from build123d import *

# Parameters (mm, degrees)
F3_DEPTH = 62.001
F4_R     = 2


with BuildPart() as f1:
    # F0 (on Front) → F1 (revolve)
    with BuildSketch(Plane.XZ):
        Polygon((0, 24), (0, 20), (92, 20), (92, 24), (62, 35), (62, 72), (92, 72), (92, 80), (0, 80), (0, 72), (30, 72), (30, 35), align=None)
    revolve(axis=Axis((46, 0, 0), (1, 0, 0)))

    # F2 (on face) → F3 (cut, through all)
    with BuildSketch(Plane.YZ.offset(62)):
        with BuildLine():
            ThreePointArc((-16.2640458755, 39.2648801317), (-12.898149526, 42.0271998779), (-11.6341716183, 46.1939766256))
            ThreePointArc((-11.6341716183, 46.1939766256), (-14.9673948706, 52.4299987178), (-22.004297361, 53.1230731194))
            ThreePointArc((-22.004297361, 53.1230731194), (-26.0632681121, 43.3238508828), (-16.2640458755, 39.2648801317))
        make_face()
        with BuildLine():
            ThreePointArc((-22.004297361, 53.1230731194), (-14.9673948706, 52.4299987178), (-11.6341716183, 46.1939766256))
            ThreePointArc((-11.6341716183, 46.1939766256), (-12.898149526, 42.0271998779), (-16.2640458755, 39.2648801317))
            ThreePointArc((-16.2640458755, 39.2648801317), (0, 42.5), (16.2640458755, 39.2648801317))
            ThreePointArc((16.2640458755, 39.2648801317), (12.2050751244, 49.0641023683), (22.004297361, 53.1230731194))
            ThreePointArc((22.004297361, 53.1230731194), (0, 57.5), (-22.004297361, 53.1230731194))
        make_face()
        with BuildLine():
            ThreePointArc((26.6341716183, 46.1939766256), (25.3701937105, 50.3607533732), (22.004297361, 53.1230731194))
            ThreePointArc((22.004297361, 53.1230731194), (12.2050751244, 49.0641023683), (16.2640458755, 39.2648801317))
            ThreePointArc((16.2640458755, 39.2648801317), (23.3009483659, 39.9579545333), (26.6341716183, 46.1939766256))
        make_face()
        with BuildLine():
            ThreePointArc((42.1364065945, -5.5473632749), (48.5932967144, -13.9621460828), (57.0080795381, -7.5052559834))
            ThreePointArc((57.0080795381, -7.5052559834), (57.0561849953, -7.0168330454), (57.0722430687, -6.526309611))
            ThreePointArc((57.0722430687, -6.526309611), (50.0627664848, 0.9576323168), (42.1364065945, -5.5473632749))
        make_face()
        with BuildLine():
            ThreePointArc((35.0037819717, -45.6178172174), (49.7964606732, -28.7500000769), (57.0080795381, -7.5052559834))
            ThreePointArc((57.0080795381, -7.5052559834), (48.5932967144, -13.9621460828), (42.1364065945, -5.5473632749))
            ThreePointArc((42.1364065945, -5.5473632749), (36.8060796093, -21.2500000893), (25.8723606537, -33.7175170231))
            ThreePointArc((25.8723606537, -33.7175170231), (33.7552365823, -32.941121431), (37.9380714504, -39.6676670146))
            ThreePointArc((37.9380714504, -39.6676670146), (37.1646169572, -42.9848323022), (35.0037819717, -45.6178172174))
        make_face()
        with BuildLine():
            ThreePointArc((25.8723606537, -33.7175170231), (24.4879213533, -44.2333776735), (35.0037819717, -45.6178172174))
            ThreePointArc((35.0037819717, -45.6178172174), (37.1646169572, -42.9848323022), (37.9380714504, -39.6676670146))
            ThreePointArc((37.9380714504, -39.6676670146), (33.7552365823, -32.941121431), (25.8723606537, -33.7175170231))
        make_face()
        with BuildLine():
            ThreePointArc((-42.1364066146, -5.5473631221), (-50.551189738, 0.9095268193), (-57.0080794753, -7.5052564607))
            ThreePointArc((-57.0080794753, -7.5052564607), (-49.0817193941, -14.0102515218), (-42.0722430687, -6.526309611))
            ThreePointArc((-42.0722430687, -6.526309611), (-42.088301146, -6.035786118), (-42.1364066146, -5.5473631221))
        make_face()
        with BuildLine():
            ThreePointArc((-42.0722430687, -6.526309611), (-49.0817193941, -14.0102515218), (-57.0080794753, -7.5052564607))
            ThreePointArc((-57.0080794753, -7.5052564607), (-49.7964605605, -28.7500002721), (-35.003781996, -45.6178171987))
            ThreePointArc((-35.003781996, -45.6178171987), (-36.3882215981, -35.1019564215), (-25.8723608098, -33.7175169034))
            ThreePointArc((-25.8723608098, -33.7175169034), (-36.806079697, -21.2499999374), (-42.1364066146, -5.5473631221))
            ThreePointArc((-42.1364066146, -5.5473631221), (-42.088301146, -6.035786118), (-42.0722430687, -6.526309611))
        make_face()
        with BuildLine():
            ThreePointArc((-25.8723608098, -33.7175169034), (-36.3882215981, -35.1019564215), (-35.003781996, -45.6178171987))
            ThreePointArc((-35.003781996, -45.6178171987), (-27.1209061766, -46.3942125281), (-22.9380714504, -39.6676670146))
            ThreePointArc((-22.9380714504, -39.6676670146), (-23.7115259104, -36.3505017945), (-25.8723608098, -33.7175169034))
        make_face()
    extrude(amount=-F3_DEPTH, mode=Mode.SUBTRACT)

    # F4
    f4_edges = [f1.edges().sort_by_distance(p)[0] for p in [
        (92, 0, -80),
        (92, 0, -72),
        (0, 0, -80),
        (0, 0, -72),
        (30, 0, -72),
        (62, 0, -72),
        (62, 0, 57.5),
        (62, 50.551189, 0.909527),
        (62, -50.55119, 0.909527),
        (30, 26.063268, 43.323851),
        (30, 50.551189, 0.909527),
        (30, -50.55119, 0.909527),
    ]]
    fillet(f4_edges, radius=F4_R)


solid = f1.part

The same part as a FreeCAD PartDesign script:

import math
import FreeCAD as App
import Part
import Sketcher

V = App.Vector
Q = App.Units.Quantity


def edges_at(feature, points):
    """Names of the edges that pass closest to the given points."""
    edges = feature.Shape.Edges
    near = lambda p: min(range(len(edges)), key=lambda i: edges[i].distToShape(Part.Vertex(*p))[0])
    return sorted({f"Edge{near(p) + 1}" for p in points})

doc = App.newDocument("Part")
body = doc.addObject("PartDesign::Body", "Body")

sketch1 = doc.addObject("Sketcher::SketchObject", "Sketch")
body.addObject(sketch1)
sketch1.AttachmentSupport = (doc.XZ_Plane, [""])
sketch1.MapMode = "FlatFace"
sketch1.addGeometry(Part.LineSegment(V(0, 24, 0), V(0, 20, 0)), False)
sketch1.addGeometry(Part.LineSegment(V(0, 20, 0), V(92, 20, 0)), False)
sketch1.addGeometry(Part.LineSegment(V(92, 20, 0), V(92, 24, 0)), False)
sketch1.addGeometry(Part.LineSegment(V(92, 24, 0), V(62, 35, 0)), False)
sketch1.addGeometry(Part.LineSegment(V(62, 35, 0), V(62, 72, 0)), False)
sketch1.addGeometry(Part.LineSegment(V(62, 72, 0), V(92, 72, 0)), False)
sketch1.addGeometry(Part.LineSegment(V(92, 72, 0), V(92, 80, 0)), False)
sketch1.addGeometry(Part.LineSegment(V(92, 80, 0), V(0, 80, 0)), False)
sketch1.addGeometry(Part.LineSegment(V(0, 80, 0), V(0, 72, 0)), False)
sketch1.addGeometry(Part.LineSegment(V(0, 72, 0), V(30, 72, 0)), False)
sketch1.addGeometry(Part.LineSegment(V(30, 72, 0), V(30, 35, 0)), False)
sketch1.addGeometry(Part.LineSegment(V(30, 35, 0), V(0, 24, 0)), False)
sketch1.addConstraint(Sketcher.Constraint("Coincident", 0, 2, 1, 1))
sketch1.addConstraint(Sketcher.Constraint("Coincident", 1, 2, 2, 1))
sketch1.addConstraint(Sketcher.Constraint("Coincident", 2, 2, 3, 1))
sketch1.addConstraint(Sketcher.Constraint("Coincident", 3, 2, 4, 1))
sketch1.addConstraint(Sketcher.Constraint("Coincident", 4, 2, 5, 1))
sketch1.addConstraint(Sketcher.Constraint("Coincident", 5, 2, 6, 1))
sketch1.addConstraint(Sketcher.Constraint("Coincident", 6, 2, 7, 1))
sketch1.addConstraint(Sketcher.Constraint("Coincident", 7, 2, 8, 1))
sketch1.addConstraint(Sketcher.Constraint("Coincident", 8, 2, 9, 1))
sketch1.addConstraint(Sketcher.Constraint("Coincident", 9, 2, 10, 1))
sketch1.addConstraint(Sketcher.Constraint("Coincident", 10, 2, 11, 1))
sketch1.addConstraint(Sketcher.Constraint("Coincident", 11, 2, 0, 1))
sketch1.addConstraint(Sketcher.Constraint("Vertical", 0))
sketch1.addConstraint(Sketcher.Constraint("Horizontal", 1))
sketch1.addConstraint(Sketcher.Constraint("Vertical", 2))
sketch1.addConstraint(Sketcher.Constraint("Vertical", 4))
sketch1.addConstraint(Sketcher.Constraint("Horizontal", 5))
sketch1.addConstraint(Sketcher.Constraint("Vertical", 6))
sketch1.addConstraint(Sketcher.Constraint("Horizontal", 7))
sketch1.addConstraint(Sketcher.Constraint("Vertical", 8))
sketch1.addConstraint(Sketcher.Constraint("Horizontal", 9))
sketch1.addConstraint(Sketcher.Constraint("Vertical", 10))
sketch1.addConstraint(Sketcher.Constraint("PointOnObject", 0, 2, -2))
sketch1.addConstraint(Sketcher.Constraint("PointOnObject", 7, 2, -2))
sketch1.addConstraint(Sketcher.Constraint("Horizontal", 5, 2, 8, 2))
sketch1.addConstraint(Sketcher.Constraint("Horizontal", 3, 2, 10, 2))
sketch1.addConstraint(Sketcher.Constraint("Horizontal", 2, 2, 11, 2))
sketch1.addConstraint(Sketcher.Constraint("Vertical", 2, 2, 5, 2))
sketch1.addConstraint(Sketcher.Constraint("Equal", 5, 9))
sketch1.addConstraint(Sketcher.Constraint("DistanceX", 1, 1, 1, 2, Q("92 mm")))
sketch1.addConstraint(Sketcher.Constraint("DistanceX", 5, 1, 5, 2, Q("30 mm")))
sketch1.addConstraint(Sketcher.Constraint("DistanceY", 0, 2, 0, 1, Q("4 mm")))
sketch1.addConstraint(Sketcher.Constraint("DistanceY", 4, 1, 4, 2, Q("37 mm")))
sketch1.addConstraint(Sketcher.Constraint("DistanceY", 6, 1, 6, 2, Q("8 mm")))
sketch1.addConstraint(Sketcher.Constraint("DistanceY", -1, 1, 0, 2, Q("20 mm")))
sketch1.addConstraint(Sketcher.Constraint("DistanceY", -1, 1, 3, 2, Q("35 mm")))
revolution = doc.addObject("PartDesign::Revolution", "Revolution")
body.addObject(revolution)
revolution.Profile = sketch1
revolution.ReferenceAxis = (sketch1, ["H_Axis"])
revolution.Angle = 360

sketch2 = doc.addObject("Sketcher::SketchObject", "Sketch001")
body.addObject(sketch2)
sketch2.AttachmentSupport = (doc.YZ_Plane, [""])
sketch2.MapMode = "FlatFace"
sketch2.AttachmentOffset = App.Placement(V(0, 0, 62), App.Rotation())
sketch2.addGeometry(Part.ArcOfCircle(Part.Circle(V(-19.1, 46.2, 0), V(0, 0, 1), 7.5), math.radians(113), math.radians(292)), False)
sketch2.addGeometry(Part.ArcOfCircle(Part.Circle(V(0, 0, 0), V(0, 0, 1), 42.5), math.radians(68), math.radians(112)), False)
sketch2.addGeometry(Part.ArcOfCircle(Part.Circle(V(19.1, 46.2, 0), V(0, 0, 1), 7.5), math.radians(-113), math.radians(0)), False)
sketch2.addGeometry(Part.ArcOfCircle(Part.Circle(V(19.1, 46.2, 0), V(0, 0, 1), 7.5), math.radians(0), math.radians(67)), False)
sketch2.addGeometry(Part.ArcOfCircle(Part.Circle(V(0, 0, 0), V(0, 0, 1), 57.5), math.radians(67), math.radians(113)), False)
sketch2.addGeometry(Part.ArcOfCircle(Part.Circle(V(49.6, -6.5, 0), V(0, 0, 1), 7.5), math.radians(-7.5), math.radians(0)), False)
sketch2.addGeometry(Part.ArcOfCircle(Part.Circle(V(49.6, -6.5, 0), V(0, 0, 1), 7.5), math.radians(0), math.radians(173)), False)
sketch2.addGeometry(Part.ArcOfCircle(Part.Circle(V(0, 0, 0), V(0, 0, 1), 42.5), math.radians(-53), math.radians(-8)), False)
sketch2.addGeometry(Part.ArcOfCircle(Part.Circle(V(30.4, -39.7, 0), V(0, 0, 1), 7.5), math.radians(128), math.radians(307)), False)
sketch2.addGeometry(Part.ArcOfCircle(Part.Circle(V(0, 0, 0), V(0, 0, 1), 57.5), math.radians(-53), math.radians(-7)), False)
sketch2.addGeometry(Part.ArcOfCircle(Part.Circle(V(-49.6, -6.5, 0), V(0, 0, 1), 7.5), math.radians(8), math.radians(188)), False)
sketch2.addGeometry(Part.ArcOfCircle(Part.Circle(V(0, 0, 0), V(0, 0, 1), 57.5), math.radians(-172), math.radians(-127)), False)
sketch2.addGeometry(Part.ArcOfCircle(Part.Circle(V(-30.4, -39.7, 0), V(0, 0, 1), 7.5), math.radians(-127), math.radians(0)), False)
sketch2.addGeometry(Part.ArcOfCircle(Part.Circle(V(-30.4, -39.7, 0), V(0, 0, 1), 7.5), math.radians(0), math.radians(53)), False)
sketch2.addGeometry(Part.ArcOfCircle(Part.Circle(V(0, 0, 0), V(0, 0, 1), 42.5), math.radians(-173), math.radians(-128)), False)
sketch2.addConstraint(Sketcher.Constraint("Tangent", 0, 2, 1, 2))
sketch2.addConstraint(Sketcher.Constraint("Tangent", 1, 1, 2, 1))
sketch2.addConstraint(Sketcher.Constraint("Tangent", 2, 2, 3, 1))
sketch2.addConstraint(Sketcher.Constraint("Tangent", 3, 2, 4, 1))
sketch2.addConstraint(Sketcher.Constraint("Tangent", 4, 2, 0, 1))
sketch2.addConstraint(Sketcher.Constraint("Tangent", 5, 2, 6, 1))
sketch2.addConstraint(Sketcher.Constraint("Tangent", 6, 2, 7, 2))
sketch2.addConstraint(Sketcher.Constraint("Tangent", 7, 1, 8, 1))
sketch2.addConstraint(Sketcher.Constraint("Tangent", 8, 2, 9, 1))
sketch2.addConstraint(Sketcher.Constraint("Tangent", 9, 2, 5, 1))
sketch2.addConstraint(Sketcher.Constraint("Tangent", 10, 2, 11, 1))
sketch2.addConstraint(Sketcher.Constraint("Tangent", 11, 2, 12, 1))
sketch2.addConstraint(Sketcher.Constraint("Tangent", 12, 2, 13, 1))
sketch2.addConstraint(Sketcher.Constraint("Tangent", 13, 2, 14, 2))
sketch2.addConstraint(Sketcher.Constraint("Tangent", 14, 1, 10, 1))
sketch2.addConstraint(Sketcher.Constraint("Coincident", 1, 3, -1, 1))
sketch2.addConstraint(Sketcher.Constraint("Coincident", 4, 3, -1, 1))
sketch2.addConstraint(Sketcher.Constraint("Coincident", 7, 3, -1, 1))
sketch2.addConstraint(Sketcher.Constraint("Coincident", 9, 3, -1, 1))
sketch2.addConstraint(Sketcher.Constraint("Coincident", 11, 3, -1, 1))
sketch2.addConstraint(Sketcher.Constraint("Coincident", 14, 3, -1, 1))
sketch2.addConstraint(Sketcher.Constraint("Equal", 0, 2))
sketch2.addConstraint(Sketcher.Constraint("Equal", 3, 5))
sketch2.addConstraint(Sketcher.Constraint("Equal", 5, 6))
sketch2.addConstraint(Sketcher.Constraint("Equal", 1, 7))
sketch2.addConstraint(Sketcher.Constraint("Equal", 8, 10))
sketch2.addConstraint(Sketcher.Constraint("Equal", 9, 11))
sketch2.addConstraint(Sketcher.Constraint("Equal", 10, 12))
sketch2.addConstraint(Sketcher.Constraint("Horizontal", 0, 3, 2, 3))
sketch2.addConstraint(Sketcher.Constraint("Horizontal", 6, 3, 10, 3))
sketch2.addConstraint(Sketcher.Constraint("Horizontal", 8, 3, 12, 3))
sketch2.addConstraint(Sketcher.Constraint("Horizontal", 3, 3, 2, 2))
sketch2.addConstraint(Sketcher.Constraint("Horizontal", 10, 3, 5, 2))
sketch2.addConstraint(Sketcher.Constraint("Horizontal", 13, 3, 12, 2))
sketch2.addConstraint(Sketcher.Constraint("Radius", 0, Q("7.5 mm")))
sketch2.addConstraint(Sketcher.Constraint("Radius", 1, Q("42.5 mm")))
sketch2.addConstraint(Sketcher.Constraint("DistanceY", 8, 2, 7, 1, Q("11.9003 mm")))
sketch2.addConstraint(Sketcher.Constraint("DistanceX", 0, 3, -1, 1, Q("19.134172 mm")))
sketch2.addConstraint(Sketcher.Constraint("DistanceY", 5, 3, -1, 1, Q("6.52631 mm")))
pocket1 = doc.addObject("PartDesign::Pocket", "Pocket")
body.addObject(pocket1)
pocket1.Profile = sketch2
pocket1.Type = "ThroughAll"
doc.recompute()

fillet = doc.addObject("PartDesign::Fillet", "Fillet")
body.addObject(fillet)
fillet.Base = (pocket1, edges_at(pocket1, [
    (92, 0, -80),
    (92, 0, -72),
    (0, 0, -80),
    (0, 0, -72),
    (30, 0, -72),
    (62, 0, -72),
    (62, 0, 57.5),
    (62, 50.063, 0.958),
    (62, -50.551, 0.91),
    (30, 23.301, 39.958),
    (30, 50.063, 0.958),
    (30, -50.551, 0.91),
]))
fillet.Radius = 2

doc.recompute()
